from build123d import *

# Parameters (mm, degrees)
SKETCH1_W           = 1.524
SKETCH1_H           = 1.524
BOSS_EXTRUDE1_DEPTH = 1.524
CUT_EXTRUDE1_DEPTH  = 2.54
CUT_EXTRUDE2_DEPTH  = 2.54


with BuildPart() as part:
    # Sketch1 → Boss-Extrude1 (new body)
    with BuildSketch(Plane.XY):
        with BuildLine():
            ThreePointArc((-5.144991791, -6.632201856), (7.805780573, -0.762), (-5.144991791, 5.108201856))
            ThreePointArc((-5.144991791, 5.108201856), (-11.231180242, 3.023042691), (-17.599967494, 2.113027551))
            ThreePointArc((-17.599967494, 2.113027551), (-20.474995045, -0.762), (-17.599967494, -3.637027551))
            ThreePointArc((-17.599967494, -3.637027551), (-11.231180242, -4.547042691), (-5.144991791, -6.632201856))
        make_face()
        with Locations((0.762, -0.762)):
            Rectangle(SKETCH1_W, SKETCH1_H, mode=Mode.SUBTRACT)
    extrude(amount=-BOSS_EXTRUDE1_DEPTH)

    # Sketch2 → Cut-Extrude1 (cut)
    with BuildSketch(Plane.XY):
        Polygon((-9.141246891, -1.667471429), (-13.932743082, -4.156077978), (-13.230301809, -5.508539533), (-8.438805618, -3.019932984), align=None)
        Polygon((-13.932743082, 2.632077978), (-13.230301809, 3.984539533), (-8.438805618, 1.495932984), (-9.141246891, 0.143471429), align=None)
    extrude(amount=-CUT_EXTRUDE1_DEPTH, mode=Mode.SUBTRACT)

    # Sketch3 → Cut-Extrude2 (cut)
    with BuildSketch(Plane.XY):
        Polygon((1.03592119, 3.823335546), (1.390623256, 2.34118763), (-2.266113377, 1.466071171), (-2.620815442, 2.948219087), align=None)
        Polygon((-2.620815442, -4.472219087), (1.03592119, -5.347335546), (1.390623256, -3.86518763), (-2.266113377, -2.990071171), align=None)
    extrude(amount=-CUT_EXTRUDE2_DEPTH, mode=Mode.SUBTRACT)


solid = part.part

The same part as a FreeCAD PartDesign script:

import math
import FreeCAD as App
import Part
import Sketcher

V = App.Vector
Q = App.Units.Quantity


def add_polygon(sketch, points):
    """Adds a closed chain of lines whose ends are joined by coincident constraints."""
    first, n = sketch.GeometryCount, len(points)
    for a, b in zip(points, points[1:] + points[:1]):
        sketch.addGeometry(Part.LineSegment(App.Vector(*a, 0), App.Vector(*b, 0)), False)
    for i in range(n):
        sketch.addConstraint(Sketcher.Constraint("Coincident", first + i, 2, first + (i + 1) % n, 1))

doc = App.newDocument("Part")
body = doc.addObject("PartDesign::Body", "Body")

sketch1 = body.newObject("Sketcher::SketchObject", "Sketch")
sketch1.AttachmentSupport = (doc.getObject("XY_Plane"), [""])
sketch1.MapMode = "FlatFace"
sketch1.addGeometry(Part.ArcOfCircle(Part.Circle(V(0, -0.8, 0), V(0, 0, 1), 7.8), math.radians(-131), math.radians(131)), False)
sketch1.addGeometry(Part.ArcOfCircle(Part.Circle(V(-19.2, 36.3, 0), V(0, 0, 1), 34.2), math.radians(-87), math.radians(-66)), False)
sketch1.addGeometry(Part.ArcOfCircle(Part.Circle(V(-17.6, -0.8, 0), V(0, 0, 1), 2.9), math.radians(90), math.radians(270)), False)
sketch1.addGeometry(Part.ArcOfCircle(Part.Circle(V(-19.2, -37.8, 0), V(0, 0, 1), 34.2), math.radians(66), math.radians(87)), False)
add_polygon(sketch1, [(1.5, -1.5), (0, -1.5), (0, 0), (1.5, 0)])
sketch1.addConstraint([
    Sketcher.Constraint("Coincident", 0, 2, 1, 2),
    Sketcher.Constraint("Coincident", 1, 1, 2, 1),
    Sketcher.Constraint("Coincident", 2, 2, 3, 2),
    Sketcher.Constraint("Coincident", 3, 1, 0, 1),
    Sketcher.Constraint("Horizontal", 4),
    Sketcher.Constraint("Vertical", 5),
    Sketcher.Constraint("Horizontal", 6),
    Sketcher.Constraint("Vertical", 7),
    Sketcher.Constraint("Coincident", 5, 2, -1, 1),
    Sketcher.Constraint("Equal", 1, 3),
    Sketcher.Constraint("PointOnObject", 0, 3, -2),
    Sketcher.Constraint("Horizontal", 0, 3, 2, 3),
    Sketcher.Constraint("Vertical", 1, 3, 3, 3),
    Sketcher.Constraint("Vertical", 2, 3, 1, 1),
    Sketcher.Constraint("Vertical", 1, 1, 2, 2),
    Sketcher.Constraint("Equal", 6, 5),
    Sketcher.Constraint("DistanceX", 4, 2, 4, 1, Q("0.06 in")),
    Sketcher.Constraint("DistanceY", 0, 3, -1, 1, Q("0.03 in")),
    Sketcher.Constraint("Radius", 0, 7.805781),
    Sketcher.Constraint("Radius", 1, 34.244578),
    Sketcher.Constraint("Radius", 2, 2.875028),
    Sketcher.Constraint("DistanceY", -1, 1, 0, 2, 5.108202),
    Sketcher.Constraint("DistanceY", 3, 3, 1, 3, 74.16081),
])
pad1 = body.newObject("PartDesign::Pad", "Pad")
pad1.Profile = sketch1
pad1.Length = Q("0.06 in")
pad1.Reversed = True

sketch2 = body.newObject("Sketcher::SketchObject", "Sketch001")
sketch2.AttachmentSupport = (doc.getObject("XY_Plane"), [""])
sketch2.MapMode = "FlatFace"
add_polygon(sketch2, [(-9.1, -1.7), (-13.9, -4.2), (-13.2, -5.5), (-8.4, -3)])
add_polygon(sketch2, [(-13.2, 4), (-13.9, 2.6), (-9.1, 0.1), (-8.4, 1.5)])
sketch2.addConstraint([
    Sketcher.Constraint("Perpendicular", 0, 1),
    Sketcher.Constraint("Perpendicular", 1, 2),
    Sketcher.Constraint("Perpendicular", 2, 3),
    Sketcher.Constraint("Perpendicular", 4, 5),
    Sketcher.Constraint("Perpendicular", 5, 6),
    Sketcher.Constraint("Perpendicular", 6, 7),
    Sketcher.Constraint("Vertical", 0, 2, 4, 2),
    Sketcher.Constraint("Vertical", 3, 2, 5, 2),
    Sketcher.Constraint("Vertical", 2, 2, 6, 2),
    Sketcher.Constraint("Equal", 3, 4),
    Sketcher.Constraint("Distance", 1, Q("0.06 in")),
    Sketcher.Constraint("DistanceX", 1, 2, -1, 1, 13.230302),
    Sketcher.Constraint("DistanceY", 1, 2, -1, 1, 5.50854),
    Sketcher.Constraint("DistanceY", 3, 2, -1, 1, 1.667471),
    Sketcher.Constraint("DistanceY", -1, 1, 5, 2, 0.143471),
    Sketcher.Constraint("DistanceX", 0, 2, 1, 2, 0.702441),
])
pocket1 = body.newObject("PartDesign::Pocket", "Pocket")
pocket1.Profile = sketch2
pocket1.Length = Q("0.1 in")

sketch3 = body.newObject("Sketcher::SketchObject", "Sketch002")
sketch3.AttachmentSupport = (doc.getObject("XY_Plane"), [""])
sketch3.MapMode = "FlatFace"
add_polygon(sketch3, [(1.4, 2.3), (1, 3.8), (-2.6, 2.9), (-2.3, 1.5)])
add_polygon(sketch3, [(-2.6, -4.5), (1, -5.3), (1.4, -3.9), (-2.3, -3)])
sketch3.addConstraint([
    Sketcher.Constraint("Perpendicular", 0, 1),
    Sketcher.Constraint("Perpendicular", 1, 2),
    Sketcher.Constraint("Perpendicular", 2, 3),
    Sketcher.Constraint("Perpendicular", 4, 5),
    Sketcher.Constraint("Perpendicular", 5, 6),
    Sketcher.Constraint("Perpendicular", 6, 7),
    Sketcher.Constraint("Vertical", 0, 2, 4, 2),
    Sketcher.Constraint("Vertical", 3, 2, 5, 2),
    Sketcher.Constraint("Vertical", 2, 2, 6, 2),
    Sketcher.Constraint("Equal", 3, 4),
    Sketcher.Constraint("Distance", 0, Q("0.06 in")),
    Sketcher.Constraint("DistanceX", -1, 1, 0, 2, 1.035921),
    Sketcher.Constraint("DistanceY", -1, 1, 1, 2, 2.948219),
    Sketcher.Constraint("DistanceY", -1, 1, 2, 2, 1.466071),
    Sketcher.Constraint("DistanceY", 6, 2, -1, 1, 2.990071),
    Sketcher.Constraint("DistanceX", 1, 2, 3, 2, 4.011439),
])
pocket2 = body.newObject("PartDesign::Pocket", "Pocket001")
pocket2.Profile = sketch3
pocket2.Length = Q("0.1 in")

doc.recompute()
